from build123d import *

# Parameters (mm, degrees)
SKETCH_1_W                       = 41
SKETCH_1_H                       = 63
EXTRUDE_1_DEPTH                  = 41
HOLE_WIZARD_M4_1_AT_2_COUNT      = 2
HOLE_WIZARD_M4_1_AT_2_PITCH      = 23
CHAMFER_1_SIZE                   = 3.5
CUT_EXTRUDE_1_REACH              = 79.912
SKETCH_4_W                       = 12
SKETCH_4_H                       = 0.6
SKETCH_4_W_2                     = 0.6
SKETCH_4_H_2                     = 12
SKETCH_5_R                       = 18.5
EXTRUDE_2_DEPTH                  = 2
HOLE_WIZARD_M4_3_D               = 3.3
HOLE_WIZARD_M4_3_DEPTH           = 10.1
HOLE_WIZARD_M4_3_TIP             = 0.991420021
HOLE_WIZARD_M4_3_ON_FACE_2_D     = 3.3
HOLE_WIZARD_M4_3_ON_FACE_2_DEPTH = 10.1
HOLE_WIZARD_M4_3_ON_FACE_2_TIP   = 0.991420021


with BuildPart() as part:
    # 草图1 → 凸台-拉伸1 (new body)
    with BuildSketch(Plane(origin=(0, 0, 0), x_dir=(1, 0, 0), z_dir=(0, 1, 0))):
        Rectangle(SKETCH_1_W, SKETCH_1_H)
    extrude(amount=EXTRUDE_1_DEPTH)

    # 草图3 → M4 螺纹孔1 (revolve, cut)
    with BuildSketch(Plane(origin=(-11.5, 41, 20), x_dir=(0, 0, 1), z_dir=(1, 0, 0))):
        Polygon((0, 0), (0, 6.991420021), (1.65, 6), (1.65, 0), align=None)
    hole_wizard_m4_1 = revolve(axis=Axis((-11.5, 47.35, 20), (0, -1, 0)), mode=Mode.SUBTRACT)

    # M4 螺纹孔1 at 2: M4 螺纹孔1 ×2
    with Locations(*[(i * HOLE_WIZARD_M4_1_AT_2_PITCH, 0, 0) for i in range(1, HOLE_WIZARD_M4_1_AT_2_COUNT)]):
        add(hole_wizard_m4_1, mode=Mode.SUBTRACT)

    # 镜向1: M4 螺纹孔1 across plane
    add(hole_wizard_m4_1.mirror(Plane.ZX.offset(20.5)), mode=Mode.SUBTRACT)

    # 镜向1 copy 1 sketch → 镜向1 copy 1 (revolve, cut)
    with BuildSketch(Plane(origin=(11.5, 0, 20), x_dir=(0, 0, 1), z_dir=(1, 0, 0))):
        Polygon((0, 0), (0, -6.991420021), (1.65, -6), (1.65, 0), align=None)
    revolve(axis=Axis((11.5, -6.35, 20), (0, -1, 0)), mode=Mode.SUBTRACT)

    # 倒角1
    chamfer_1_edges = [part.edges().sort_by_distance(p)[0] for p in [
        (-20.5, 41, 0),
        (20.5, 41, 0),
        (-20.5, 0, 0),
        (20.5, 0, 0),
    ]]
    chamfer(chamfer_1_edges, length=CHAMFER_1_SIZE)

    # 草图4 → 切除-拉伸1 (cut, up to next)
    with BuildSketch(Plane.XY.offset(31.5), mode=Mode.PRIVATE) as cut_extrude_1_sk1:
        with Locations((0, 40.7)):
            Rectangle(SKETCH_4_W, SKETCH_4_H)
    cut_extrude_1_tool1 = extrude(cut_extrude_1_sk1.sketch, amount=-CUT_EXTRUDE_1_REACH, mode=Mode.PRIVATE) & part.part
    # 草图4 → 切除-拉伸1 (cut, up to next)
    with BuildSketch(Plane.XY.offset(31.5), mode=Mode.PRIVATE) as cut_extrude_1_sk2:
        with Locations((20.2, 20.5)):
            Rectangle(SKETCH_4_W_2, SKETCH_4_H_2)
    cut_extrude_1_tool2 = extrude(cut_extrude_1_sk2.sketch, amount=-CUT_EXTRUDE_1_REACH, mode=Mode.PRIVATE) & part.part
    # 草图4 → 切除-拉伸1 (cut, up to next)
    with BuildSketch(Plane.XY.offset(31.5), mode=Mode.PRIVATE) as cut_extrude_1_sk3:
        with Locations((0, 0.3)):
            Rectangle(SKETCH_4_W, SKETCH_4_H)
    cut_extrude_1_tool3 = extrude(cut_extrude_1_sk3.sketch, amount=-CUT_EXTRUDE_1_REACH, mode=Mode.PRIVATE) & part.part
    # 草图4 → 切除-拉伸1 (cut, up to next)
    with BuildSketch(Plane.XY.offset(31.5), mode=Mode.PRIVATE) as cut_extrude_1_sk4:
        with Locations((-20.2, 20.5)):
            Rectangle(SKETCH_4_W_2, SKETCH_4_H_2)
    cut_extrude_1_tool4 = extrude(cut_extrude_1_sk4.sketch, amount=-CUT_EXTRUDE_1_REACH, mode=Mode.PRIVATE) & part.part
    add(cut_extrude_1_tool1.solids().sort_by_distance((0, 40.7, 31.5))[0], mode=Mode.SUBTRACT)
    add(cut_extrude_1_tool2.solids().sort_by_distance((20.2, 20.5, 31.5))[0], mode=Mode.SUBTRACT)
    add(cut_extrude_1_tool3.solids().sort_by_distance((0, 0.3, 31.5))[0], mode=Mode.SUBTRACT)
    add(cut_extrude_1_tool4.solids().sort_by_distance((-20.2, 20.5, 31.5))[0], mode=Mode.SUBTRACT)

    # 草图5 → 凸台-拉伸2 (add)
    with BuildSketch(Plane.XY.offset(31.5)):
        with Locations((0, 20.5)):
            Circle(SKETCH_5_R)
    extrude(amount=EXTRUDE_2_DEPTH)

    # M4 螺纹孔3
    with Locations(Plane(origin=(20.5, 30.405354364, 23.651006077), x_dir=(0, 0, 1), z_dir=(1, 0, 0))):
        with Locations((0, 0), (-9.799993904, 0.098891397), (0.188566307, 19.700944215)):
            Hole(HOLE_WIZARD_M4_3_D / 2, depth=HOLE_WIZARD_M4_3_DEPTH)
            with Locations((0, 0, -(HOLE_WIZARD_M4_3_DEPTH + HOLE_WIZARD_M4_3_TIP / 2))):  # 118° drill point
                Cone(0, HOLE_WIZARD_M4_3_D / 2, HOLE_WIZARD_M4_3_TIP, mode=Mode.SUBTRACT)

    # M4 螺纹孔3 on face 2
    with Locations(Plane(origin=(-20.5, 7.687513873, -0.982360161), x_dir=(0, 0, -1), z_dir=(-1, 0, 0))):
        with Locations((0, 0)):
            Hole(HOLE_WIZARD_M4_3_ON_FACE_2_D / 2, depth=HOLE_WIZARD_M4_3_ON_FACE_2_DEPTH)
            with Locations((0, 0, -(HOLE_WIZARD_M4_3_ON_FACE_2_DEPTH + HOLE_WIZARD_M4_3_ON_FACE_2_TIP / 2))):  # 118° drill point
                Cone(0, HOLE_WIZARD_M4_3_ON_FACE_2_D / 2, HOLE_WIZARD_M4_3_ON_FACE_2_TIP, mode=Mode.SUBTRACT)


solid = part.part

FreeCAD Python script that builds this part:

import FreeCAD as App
import Part
import Sketcher
Q = App.Units.Quantity


def edges_at(feature, points):
    """Names of the edges that pass closest to the given points."""
    edges = feature.Shape.Edges
    near = lambda p: min(range(len(edges)), key=lambda i: edges[i].distToShape(Part.Vertex(*p))[0])
    return sorted({f"Edge{near(p) + 1}" for p in points})


def add_polygon(sketch, points):
    """Adds a closed chain of lines whose ends are joined by coincident constraints."""
    first, n = sketch.GeometryCount, len(points)
    for a, b in zip(points, points[1:] + points[:1]):
        sketch.addGeometry(Part.LineSegment(App.Vector(*a, 0), App.Vector(*b, 0)), False)
    for i in range(n):
        sketch.addConstraint(Sketcher.Constraint("Coincident", first + i, 2, first + (i + 1) % n, 1))

doc = App.newDocument("Part")
body = doc.addObject("PartDesign::Body", "Body")

sketch1 = body.newObject("Sketcher::SketchObject", "Sketch")
sketch1.AttachmentSupport = (doc.getObject("XZ_Plane"), [""])
sketch1.MapMode = "FlatFace"
add_polygon(sketch1, [(-20.5, -31.5), (-20.5, 31.5), (20.5, 31.5), (20.5, -31.5)])
sketch1.addConstraint([
    Sketcher.Constraint("Vertical", 0),
    Sketcher.Constraint("Horizontal", 1),
    Sketcher.Constraint("Vertical", 2),
    Sketcher.Constraint("Horizontal", 3),
    Sketcher.Constraint("Symmetric", 0, 2, 2, 2, -1, 1),
    Sketcher.Constraint("DistanceX", 1, 1, 1, 2, 41.0),
    Sketcher.Constraint("DistanceY", 0, 1, 0, 2, 63.0),
])
pad1 = body.newObject("PartDesign::Pad", "Pad")
pad1.Profile = sketch1
pad1.Length = 41
pad1.Reversed = True

sketch2 = body.newObject("Sketcher::SketchObject", "Sketch001")
sketch2.AttachmentSupport = (doc.getObject("YZ_Plane"), [""])
sketch2.MapMode = "FlatFace"
sketch2.AttachmentOffset = App.Placement(App.Vector(0, 0, -11.5), App.Rotation())
add_polygon(sketch2, [(34.00858, 20), (41, 20), (41, 21.65), (35, 21.65)])
sketch2.addGeometry(Part.LineSegment(App.Vector(41, 20, 0), App.Vector(34.00858, 20, 0)), True)
sketch2.addConstraint([
    Sketcher.Constraint("Horizontal", 0),
    Sketcher.Constraint("Vertical", 1),
    Sketcher.Constraint("Horizontal", 2),
    Sketcher.Constraint("Horizontal", 4),
    Sketcher.Constraint("Coincident", 4, 1, 0, 2),
    Sketcher.Constraint("Equal", 0, 4),
    Sketcher.Constraint("DistanceX", 2, 2, 2, 1, 6.0),
    Sketcher.Constraint("Angle", 3, Q("-121 deg")),
    Sketcher.Constraint("DistanceX", -1, 1, 0, 2, 41.0),
    Sketcher.Constraint("DistanceY", -1, 1, 0, 2, 20.0),
    Sketcher.Constraint("DistanceY", 1, 1, 1, 2, 1.65),
])
groove = body.newObject("PartDesign::Groove", "Groove")
groove.Profile = sketch2
groove.ReferenceAxis = (sketch2, ["Axis0"])
groove.Angle = 360
doc.recompute()

linearpattern = body.newObject("PartDesign::LinearPattern", "LinearPattern")
linearpattern.Originals = [groove]
linearpattern.Direction = (doc.getObject("X_Axis"), [""])
linearpattern.Mode = "offset"
linearpattern.Offset = 23
linearpattern.Occurrences = 2
body.Tip = linearpattern
doc.recompute()

datumplane = body.newObject("PartDesign::Plane", "DatumPlane")
datumplane.AttachmentSupport = (doc.getObject("XZ_Plane"), [""])
datumplane.MapMode = "FlatFace"
datumplane.AttachmentOffset = App.Placement(App.Vector(0, 0, -20.5), App.Rotation())
mirrored = body.newObject("PartDesign::Mirrored", "Mirrored")
mirrored.Originals = [groove]
mirrored.MirrorPlane = (datumplane, [""])
body.Tip = mirrored

sketch3 = body.newObject("Sketcher::SketchObject", "Sketch002")
sketch3.AttachmentSupport = (doc.getObject("YZ_Plane"), [""])
sketch3.MapMode = "FlatFace"
sketch3.AttachmentOffset = App.Placement(App.Vector(0, 0, 11.5), App.Rotation())
add_polygon(sketch3, [(0, 20), (6.99142, 20), (6, 21.65), (0, 21.65)])
sketch3.addGeometry(Part.LineSegment(App.Vector(6.99142, 20, 0), App.Vector(0, 20, 0)), True)
sketch3.addConstraint([
    Sketcher.Constraint("Horizontal", 0),
    Sketcher.Constraint("Horizontal", 2),
    Sketcher.Constraint("Vertical", 3),
    Sketcher.Constraint("Horizontal", 4),
    Sketcher.Constraint("Coincident", 4, 1, 0, 2),
    Sketcher.Constraint("PointOnObject", 2, 2, -2),
    Sketcher.Constraint("PointOnObject", 4, 2, -2),
    Sketcher.Constraint("DistanceX", 2, 2, 2, 1, 6.0),
    Sketcher.Constraint("Angle", 1, Q("121 deg")),
    Sketcher.Constraint("DistanceY", -1, 1, 0, 2, 20.0),
    Sketcher.Constraint("DistanceY", 3, 2, 3, 1, 1.65),
])
groove2 = body.newObject("PartDesign::Groove", "Groove001")
groove2.Profile = sketch3
groove2.ReferenceAxis = (sketch3, ["Axis0"])
groove2.Angle = 360
doc.recompute()

chamfer = body.newObject("PartDesign::Chamfer", "Chamfer")
chamfer.Base = (groove2, edges_at(groove2, [
    (-20.5, 41, 0),
    (20.5, 41, 0),
    (-20.5, 0, 0),
    (20.5, 0, 0),
]))
chamfer.Size = 3.5

sketch4 = body.newObject("Sketcher::SketchObject", "Sketch003")
sketch4.AttachmentSupport = (doc.getObject("XY_Plane"), [""])
sketch4.MapMode = "FlatFace"
sketch4.AttachmentOffset = App.Placement(App.Vector(0, 0, 31.5), App.Rotation())
add_polygon(sketch4, [(-6, 41), (-6, 40.4), (6, 40.4), (6, 41)])
sketch4.addConstraint([
    Sketcher.Constraint("Vertical", 0),
    Sketcher.Constraint("Horizontal", 1),
    Sketcher.Constraint("Vertical", 2),
    Sketcher.Constraint("Horizontal", 3),
    Sketcher.Constraint("DistanceX", 1, 1, 1, 2, 12.0),
    Sketcher.Constraint("DistanceY", 0, 2, 0, 1, 0.6),
    Sketcher.Constraint("DistanceX", 0, 2, -1, 1, 6.0),
    Sketcher.Constraint("DistanceY", -1, 1, 2, 2, 41.0),
])
pocket1 = body.newObject("PartDesign::Pocket", "Pocket")
pocket1.Profile = sketch4
pocket1.Type = "UpToFirst"

sketch5 = body.newObject("Sketcher::SketchObject", "Sketch004")
sketch5.AttachmentSupport = (doc.getObject("XY_Plane"), [""])
sketch5.MapMode = "FlatFace"
sketch5.AttachmentOffset = App.Placement(App.Vector(0, 0, 31.5), App.Rotation())
add_polygon(sketch5, [(19.9, 26.5), (19.9, 14.5), (20.5, 14.5), (20.5, 26.5)])
sketch5.addConstraint([
    Sketcher.Constraint("Vertical", 0),
    Sketcher.Constraint("Horizontal", 1),
    Sketcher.Constraint("Vertical", 2),
    Sketcher.Constraint("Horizontal", 3),
    Sketcher.Constraint("DistanceY", 0, 2, 0, 1, 12.0),
    Sketcher.Constraint("DistanceX", 1, 1, 1, 2, 0.6),
    Sketcher.Constraint("DistanceX", -1, 1, 0, 2, 19.9),
    Sketcher.Constraint("DistanceY", -1, 1, 0, 2, 14.5),
])
pocket2 = body.newObject("PartDesign::Pocket", "Pocket001")
pocket2.Profile = sketch5
pocket2.Type = "UpToFirst"

sketch6 = body.newObject("Sketcher::SketchObject", "Sketch005")
sketch6.AttachmentSupport = (doc.getObject("XY_Plane"), [""])
sketch6.MapMode = "FlatFace"
sketch6.AttachmentOffset = App.Placement(App.Vector(0, 0, 31.5), App.Rotation())
add_polygon(sketch6, [(-6, 0.6), (-6, 0), (6, 0), (6, 0.6)])
sketch6.addConstraint([
    Sketcher.Constraint("Vertical", 0),
    Sketcher.Constraint("Horizontal", 1),
    Sketcher.Constraint("Vertical", 2),
    Sketcher.Constraint("Horizontal", 3),
    Sketcher.Constraint("Symmetric", 0, 2, 1, 2, -1, 1),
    Sketcher.Constraint("DistanceX", 1, 1, 1, 2, 12.0),
    Sketcher.Constraint("DistanceY", 0, 2, 0, 1, 0.6),
])
pocket3 = body.newObject("PartDesign::Pocket", "Pocket002")
pocket3.Profile = sketch6
pocket3.Type = "UpToFirst"

sketch7 = body.newObject("Sketcher::SketchObject", "Sketch006")
sketch7.AttachmentSupport = (doc.getObject("XY_Plane"), [""])
sketch7.MapMode = "FlatFace"
sketch7.AttachmentOffset = App.Placement(App.Vector(0, 0, 31.5), App.Rotation())
add_polygon(sketch7, [(-20.5, 26.5), (-20.5, 14.5), (-19.9, 14.5), (-19.9, 26.5)])
sketch7.addConstraint([
    Sketcher.Constraint("Vertical", 0),
    Sketcher.Constraint("Horizontal", 1),
    Sketcher.Constraint("Vertical", 2),
    Sketcher.Constraint("Horizontal", 3),
    Sketcher.Constraint("DistanceY", 0, 2, 0, 1, 12.0),
    Sketcher.Constraint("DistanceX", 1, 1, 1, 2, 0.6),
    Sketcher.Constraint("DistanceX", 0, 2, -1, 1, 20.5),
    Sketcher.Constraint("DistanceY", -1, 1, 0, 2, 14.5),
])
pocket4 = body.newObject("PartDesign::Pocket", "Pocket003")
pocket4.Profile = sketch7
pocket4.Type = "UpToFirst"

sketch8 = body.newObject("Sketcher::SketchObject", "Sketch007")
sketch8.AttachmentSupport = (doc.getObject("XY_Plane"), [""])
sketch8.MapMode = "FlatFace"
sketch8.AttachmentOffset = App.Placement(App.Vector(0, 0, 31.5), App.Rotation())
sketch8.addGeometry(Part.Circle(App.Vector(0, 20.5, 0), App.Vector(0, 0, 1), 18.5), False)
sketch8.addConstraint([
    Sketcher.Constraint("PointOnObject", 0, 3, -2),
    Sketcher.Constraint("Diameter", 0, 37.0),
    Sketcher.Constraint("DistanceY", -1, 1, 0, 3, 20.5),
])
pad2 = body.newObject("PartDesign::Pad", "Pad001")
pad2.Profile = sketch8
pad2.Length = 2

sketch9 = body.newObject("Sketcher::SketchObject", "Sketch008")
sketch9.AttachmentSupport = (doc.getObject("YZ_Plane"), [""])
sketch9.MapMode = "FlatFace"
sketch9.AttachmentOffset = App.Placement(App.Vector(0, 0, 20.5), App.Rotation())
sketch9.addGeometry([
    Part.Circle(App.Vector(30.405354, 23.651006, 0), App.Vector(0, 0, 1), 1.65),
    Part.Circle(App.Vector(30.306463, 13.851012, 0), App.Vector(0, 0, 1), 1.65),
    Part.Circle(App.Vector(10.70441, 23.839572, 0), App.Vector(0, 0, 1), 1.65),
], False)
sketch9.addConstraint([
    Sketcher.Constraint("Equal", 0, 1),
    Sketcher.Constraint("Equal", 1, 2),
    Sketcher.Constraint("Diameter", 0, 3.3),
    Sketcher.Constraint("DistanceX", -1, 1, 2, 3, 10.70441),
    Sketcher.Constraint("DistanceX", 1, 3, 0, 3, 0.098891),
    Sketcher.Constraint("DistanceY", 1, 3, 2, 3, 9.98856),
    Sketcher.Constraint("DistanceX", -1, 1, 0, 3, 30.405354),
    Sketcher.Constraint("DistanceY", -1, 1, 0, 3, 23.651006),
    Sketcher.Constraint("DistanceY", -1, 1, 1, 3, 13.851012),
])
doc.recompute()
hole = body.newObject("PartDesign::Hole", "Hole")
hole.Profile = sketch9
hole.ThreadType = "None"
hole.Diameter = 3.3
hole.DepthType = "Dimension"
hole.Depth = 10.1
hole.DrillPoint = "Angled"
hole.DrillPointAngle = 118

sketch10 = body.newObject("Sketcher::SketchObject", "Sketch009")
sketch10.AttachmentSupport = (doc.getObject("YZ_Plane"), [""])
sketch10.MapMode = "FlatFace"
sketch10.AttachmentOffset = App.Placement(App.Vector(0, 0, -20.5), App.Rotation())
sketch10.addGeometry(Part.Circle(App.Vector(7.687514, -0.98236, 0), App.Vector(0, 0, 1), 1.65), False)
sketch10.addConstraint([
    Sketcher.Constraint("Diameter", 0, 3.3),
    Sketcher.Constraint("DistanceY", 0, 3, -1, 1, 0.98236),
    Sketcher.Constraint("DistanceX", -1, 1, 0, 3, 7.687514),
])
doc.recompute()
hole2 = body.newObject("PartDesign::Hole", "Hole001")
hole2.Profile = sketch10
hole2.ThreadType = "None"
hole2.Diameter = 3.3
hole2.DepthType = "Dimension"
hole2.Depth = 10.1
hole2.DrillPoint = "Angled"
hole2.DrillPointAngle = 118
hole2.Reversed = True

doc.recompute()
